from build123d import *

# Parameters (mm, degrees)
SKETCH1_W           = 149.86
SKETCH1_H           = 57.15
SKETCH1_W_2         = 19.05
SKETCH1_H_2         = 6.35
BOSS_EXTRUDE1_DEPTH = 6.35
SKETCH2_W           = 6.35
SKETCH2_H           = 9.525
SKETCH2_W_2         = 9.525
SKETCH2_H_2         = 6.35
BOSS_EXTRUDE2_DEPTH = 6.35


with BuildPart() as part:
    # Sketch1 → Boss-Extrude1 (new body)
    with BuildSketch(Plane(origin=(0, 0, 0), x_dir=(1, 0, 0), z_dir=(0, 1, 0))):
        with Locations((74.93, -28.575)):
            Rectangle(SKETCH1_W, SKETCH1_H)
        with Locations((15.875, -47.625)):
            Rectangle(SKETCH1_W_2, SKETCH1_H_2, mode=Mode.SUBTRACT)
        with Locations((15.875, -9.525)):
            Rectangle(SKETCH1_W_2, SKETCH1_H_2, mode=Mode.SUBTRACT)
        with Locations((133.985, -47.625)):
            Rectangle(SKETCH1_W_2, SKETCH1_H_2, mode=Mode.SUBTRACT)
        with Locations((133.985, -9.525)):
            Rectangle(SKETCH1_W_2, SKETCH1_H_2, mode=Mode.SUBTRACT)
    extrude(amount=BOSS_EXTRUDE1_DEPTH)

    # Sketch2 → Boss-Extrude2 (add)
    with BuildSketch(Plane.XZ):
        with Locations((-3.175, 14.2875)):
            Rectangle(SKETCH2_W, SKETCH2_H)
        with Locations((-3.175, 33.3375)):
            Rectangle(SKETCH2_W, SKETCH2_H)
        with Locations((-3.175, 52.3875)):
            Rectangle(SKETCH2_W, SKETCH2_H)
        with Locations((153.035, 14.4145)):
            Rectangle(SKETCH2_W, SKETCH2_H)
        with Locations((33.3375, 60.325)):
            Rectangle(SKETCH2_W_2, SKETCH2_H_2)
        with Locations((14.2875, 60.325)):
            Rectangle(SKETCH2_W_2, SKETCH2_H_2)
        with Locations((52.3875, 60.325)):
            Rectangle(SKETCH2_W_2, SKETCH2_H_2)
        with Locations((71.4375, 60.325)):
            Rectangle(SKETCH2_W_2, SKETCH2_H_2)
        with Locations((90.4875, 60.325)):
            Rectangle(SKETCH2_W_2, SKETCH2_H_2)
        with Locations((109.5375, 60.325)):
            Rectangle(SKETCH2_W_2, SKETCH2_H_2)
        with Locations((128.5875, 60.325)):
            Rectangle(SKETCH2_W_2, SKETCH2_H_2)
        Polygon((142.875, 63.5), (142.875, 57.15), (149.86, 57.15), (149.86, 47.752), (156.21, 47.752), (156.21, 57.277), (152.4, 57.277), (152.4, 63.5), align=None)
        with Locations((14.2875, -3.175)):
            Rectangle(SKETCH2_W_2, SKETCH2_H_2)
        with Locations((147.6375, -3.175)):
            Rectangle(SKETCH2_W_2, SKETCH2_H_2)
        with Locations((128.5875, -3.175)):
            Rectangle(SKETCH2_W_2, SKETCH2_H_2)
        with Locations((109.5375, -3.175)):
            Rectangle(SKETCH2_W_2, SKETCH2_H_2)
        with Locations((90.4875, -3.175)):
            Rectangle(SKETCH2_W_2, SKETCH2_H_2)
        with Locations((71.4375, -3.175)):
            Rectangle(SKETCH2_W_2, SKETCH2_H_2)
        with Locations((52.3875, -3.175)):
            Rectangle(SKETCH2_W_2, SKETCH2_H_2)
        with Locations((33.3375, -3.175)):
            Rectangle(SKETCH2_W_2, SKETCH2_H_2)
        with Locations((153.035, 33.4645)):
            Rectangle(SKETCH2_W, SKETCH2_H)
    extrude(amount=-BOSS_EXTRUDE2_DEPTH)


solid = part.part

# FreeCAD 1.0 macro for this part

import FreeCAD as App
import Part
import Sketcher
from FreeCAD import Vector
Q = App.Units.Quantity


def add_polygon(sketch, points):
    """Adds a closed chain of lines whose ends are joined by coincident constraints."""
    first, n = sketch.GeometryCount, len(points)
    for a, b in zip(points, points[1:] + points[:1]):
        sketch.addGeometry(Part.LineSegment(App.Vector(*a, 0), App.Vector(*b, 0)), False)
    for i in range(n):
        sketch.addConstraint(Sketcher.Constraint("Coincident", first + i, 2, first + (i + 1) % n, 1))

doc = App.newDocument("Part")
body = doc.addObject("PartDesign::Body", "Body")

# Sketch on XZ plane
sketch1 = doc.addObject("Sketcher::SketchObject", "Sketch")
body.addObject(sketch1)
sketch1.AttachmentSupport = (doc.XZ_Plane, [""])
sketch1.MapMode = "FlatFace"
add_polygon(sketch1, [(0, 0), (0, 57), (150, 57), (150, 0)])  # lines 0-3
add_polygon(sketch1, [(25, 51), (6, 51), (6, 44), (25, 44)])  # lines 4-7
add_polygon(sketch1, [(144, 51), (124, 51), (124, 44), (144, 44)])  # lines 8-11
add_polygon(sketch1, [(25, 13), (6, 13), (6, 6), (25, 6)])  # lines 12-15
add_polygon(sketch1, [(144, 13), (124, 13), (124, 6), (144, 6)])  # lines 16-19
sketch1.addConstraint([
    Sketcher.Constraint("Vertical", 0),
    Sketcher.Constraint("Horizontal", 1),
    Sketcher.Constraint("Vertical", 2),
    Sketcher.Constraint("Horizontal", 3),
    Sketcher.Constraint("Horizontal", 4),
    Sketcher.Constraint("Vertical", 5),
    Sketcher.Constraint("Horizontal", 6),
    Sketcher.Constraint("Vertical", 7),
    Sketcher.Constraint("Horizontal", 8),
    Sketcher.Constraint("Vertical", 9),
    Sketcher.Constraint("Horizontal", 10),
    Sketcher.Constraint("Vertical", 11),
    Sketcher.Constraint("Horizontal", 12),
    Sketcher.Constraint("Vertical", 13),
    Sketcher.Constraint("Horizontal", 14),
    Sketcher.Constraint("Vertical", 15),
    Sketcher.Constraint("Horizontal", 16),
    Sketcher.Constraint("Vertical", 17),
    Sketcher.Constraint("Horizontal", 18),
    Sketcher.Constraint("Vertical", 19),
    Sketcher.Constraint("Coincident", 3, 2, -1, 1),
    Sketcher.Constraint("Horizontal", 7, 2, 8, 2),
    Sketcher.Constraint("Horizontal", 6, 2, 9, 2),
    Sketcher.Constraint("Horizontal", 15, 2, 16, 2),
    Sketcher.Constraint("Horizontal", 14, 2, 17, 2),
    Sketcher.Constraint("Vertical", 5, 2, 12, 2),
    Sketcher.Constraint("Vertical", 7, 2, 14, 2),
    Sketcher.Constraint("Vertical", 9, 2, 16, 2),
    Sketcher.Constraint("Vertical", 11, 2, 18, 2),
    Sketcher.Constraint("Equal", 6, 8),
    Sketcher.Constraint("Equal", 11, 13),
    Sketcher.Constraint("DistanceX", 1, 1, 1, 2, Q("5.9 in")),
    Sketcher.Constraint("DistanceY", -1, 1, 4, 2, Q("2 in")),
    Sketcher.Constraint("DistanceX", -1, 1, 6, 2, Q("1 in")),
    Sketcher.Constraint("DistanceX", 8, 2, 1, 2, Q("1 in")),
    Sketcher.Constraint("DistanceX", 4, 2, 4, 1, Q("0.75 in")),
    Sketcher.Constraint("DistanceY", 0, 1, 0, 2, Q("2.25 in")),
    Sketcher.Constraint("DistanceY", 5, 2, 5, 1, Q("0.25 in")),
    Sketcher.Constraint("DistanceY", -1, 1, 12, 2, Q("0.5 in")),
])
pad1 = doc.addObject("PartDesign::Pad", "Pad")
body.addObject(pad1)
pad1.Profile = sketch1
pad1.Length = Q("0.25 in")
pad1.Reversed = True

# Sketch on XZ plane
sketch2 = doc.addObject("Sketcher::SketchObject", "Sketch001")
body.addObject(sketch2)
sketch2.AttachmentSupport = (doc.XZ_Plane, [""])
sketch2.MapMode = "FlatFace"
add_polygon(sketch2, [(-6.3, 19.1), (-6.3, 9.5), (0, 9.5), (0, 19.1)])  # lines 0-3
add_polygon(sketch2, [(-6.3, 38.1), (-6.3, 28.6), (0, 28.6), (0, 38.1)])  # lines 4-7
add_polygon(sketch2, [(-6.3, 57.1), (-6.3, 47.6), (0, 47.6), (0, 57.1)])  # lines 8-11
add_polygon(sketch2, [(149.9, 19.2), (149.9, 9.7), (156.2, 9.7), (156.2, 19.2)])  # lines 12-15
add_polygon(sketch2, [(28.6, 63.5), (28.6, 57.1), (38.1, 57.1), (38.1, 63.5)])  # lines 16-19
add_polygon(sketch2, [(9.5, 63.5), (9.5, 57.1), (19.1, 57.1), (19.1, 63.5)])  # lines 20-23
add_polygon(sketch2, [(47.6, 63.5), (47.6, 57.1), (57.1, 57.1), (57.1, 63.5)])  # lines 24-27
add_polygon(sketch2, [(66.7, 63.5), (66.7, 57.1), (76.2, 57.1), (76.2, 63.5)])  # lines 28-31
add_polygon(sketch2, [(85.7, 63.5), (85.7, 57.1), (95.2, 57.1), (95.2, 63.5)])  # lines 32-35
add_polygon(sketch2, [(104.8, 63.5), (104.8, 57.1), (114.3, 57.1), (114.3, 63.5)])  # lines 36-39
add_polygon(sketch2, [(123.8, 63.5), (123.8, 57.1), (133.3, 57.1), (133.3, 63.5)])  # lines 40-43
add_polygon(sketch2, [(142.9, 63.5), (142.9, 57.1), (149.9, 57.1), (149.9, 47.8), (156.2, 47.8), (156.2, 57.3), (152.4, 57.3), (152.4, 63.5)])  # lines 44-51
add_polygon(sketch2, [(9.5, 0), (9.5, -6.3), (19.1, -6.3), (19.1, 0)])  # lines 52-55
add_polygon(sketch2, [(142.9, 0), (142.9, -6.3), (152.4, -6.3), (152.4, 0)])  # lines 56-59
add_polygon(sketch2, [(123.8, 0), (123.8, -6.3), (133.3, -6.3), (133.3, 0)])  # lines 60-63
add_polygon(sketch2, [(104.8, 0), (104.8, -6.3), (114.3, -6.3), (114.3, 0)])  # lines 64-67
add_polygon(sketch2, [(85.7, 0), (85.7, -6.3), (95.2, -6.3), (95.2, 0)])  # lines 68-71
add_polygon(sketch2, [(66.7, 0), (66.7, -6.3), (76.2, -6.3), (76.2, 0)])  # lines 72-75
add_polygon(sketch2, [(47.6, 0), (47.6, -6.3), (57.1, -6.3), (57.1, 0)])  # lines 76-79
add_polygon(sketch2, [(28.6, 0), (28.6, -6.3), (38.1, -6.3), (38.1, 0)])  # lines 80-83
add_polygon(sketch2, [(149.9, 38.2), (149.9, 28.7), (156.2, 28.7), (156.2, 38.2)])  # lines 84-87
sketch2.addConstraint([
    Sketcher.Constraint("Vertical", 0),
    Sketcher.Constraint("Horizontal", 1),
    Sketcher.Constraint("Vertical", 2),
    Sketcher.Constraint("Horizontal", 3),
    Sketcher.Constraint("Vertical", 4),
    Sketcher.Constraint("Horizontal", 5),
    Sketcher.Constraint("Vertical", 6),
    Sketcher.Constraint("Horizontal", 7),
    Sketcher.Constraint("Vertical", 8),
    Sketcher.Constraint("Horizontal", 9),
    Sketcher.Constraint("Vertical", 10),
    Sketcher.Constraint("Horizontal", 11),
    Sketcher.Constraint("Vertical", 12),
    Sketcher.Constraint("Horizontal", 13),
    Sketcher.Constraint("Vertical", 14),
    Sketcher.Constraint("Horizontal", 15),
    Sketcher.Constraint("Vertical", 16),
    Sketcher.Constraint("Horizontal", 17),
    Sketcher.Constraint("Vertical", 18),
    Sketcher.Constraint("Horizontal", 19),
    Sketcher.Constraint("Vertical", 20),
    Sketcher.Constraint("Horizontal", 21),
    Sketcher.Constraint("Vertical", 22),
    Sketcher.Constraint("Horizontal", 23),
    Sketcher.Constraint("Vertical", 24),
    Sketcher.Constraint("Horizontal", 25),
    Sketcher.Constraint("Vertical", 26),
    Sketcher.Constraint("Horizontal", 27),
    Sketcher.Constraint("Vertical", 28),
    Sketcher.Constraint("Horizontal", 29),
    Sketcher.Constraint("Vertical", 30),
    Sketcher.Constraint("Horizontal", 31),
    Sketcher.Constraint("Vertical", 32),
    Sketcher.Constraint("Horizontal", 33),
    Sketcher.Constraint("Vertical", 34),
    Sketcher.Constraint("Horizontal", 35),
    Sketcher.Constraint("Vertical", 36),
    Sketcher.Constraint("Horizontal", 37),
    Sketcher.Constraint("Vertical", 38),
    Sketcher.Constraint("Horizontal", 39),
    Sketcher.Constraint("Vertical", 40),
    Sketcher.Constraint("Horizontal", 41),
    Sketcher.Constraint("Vertical", 42),
    Sketcher.Constraint("Horizontal", 43),
    Sketcher.Constraint("Vertical", 44),
    Sketcher.Constraint("Horizontal", 45),
    Sketcher.Constraint("Vertical", 46),
    Sketcher.Constraint("Horizontal", 47),
    Sketcher.Constraint("Vertical", 48),
    Sketcher.Constraint("Horizontal", 49),
    Sketcher.Constraint("Vertical", 50),
    Sketcher.Constraint("Horizontal", 51),
    Sketcher.Constraint("Vertical", 52),
    Sketcher.Constraint("Horizontal", 53),
    Sketcher.Constraint("Vertical", 54),
    Sketcher.Constraint("Horizontal", 55),
    Sketcher.Constraint("Vertical", 56),
    Sketcher.Constraint("Horizontal", 57),
    Sketcher.Constraint("Vertical", 58),
    Sketcher.Constraint("Horizontal", 59),
    Sketcher.Constraint("Vertical", 60),
    Sketcher.Constraint("Horizontal", 61),
    Sketcher.Constraint("Vertical", 62),
    Sketcher.Constraint("Horizontal", 63),
    Sketcher.Constraint("Vertical", 64),
    Sketcher.Constraint("Horizontal", 65),
    Sketcher.Constraint("Vertical", 66),
    Sketcher.Constraint("Horizontal", 67),
    Sketcher.Constraint("Vertical", 68),
    Sketcher.Constraint("Horizontal", 69),
    Sketcher.Constraint("Vertical", 70),
    Sketcher.Constraint("Horizontal", 71),
    Sketcher.Constraint("Vertical", 72),
    Sketcher.Constraint("Horizontal", 73),
    Sketcher.Constraint("Vertical", 74),
    Sketcher.Constraint("Horizontal", 75),
    Sketcher.Constraint("Vertical", 76),
    Sketcher.Constraint("Horizontal", 77),
    Sketcher.Constraint("Vertical", 78),
    Sketcher.Constraint("Horizontal", 79),
    Sketcher.Constraint("Vertical", 80),
    Sketcher.Constraint("Horizontal", 81),
    Sketcher.Constraint("Vertical", 82),
    Sketcher.Constraint("Horizontal", 83),
    Sketcher.Constraint("Vertical", 84),
    Sketcher.Constraint("Horizontal", 85),
    Sketcher.Constraint("Vertical", 86),
    Sketcher.Constraint("Horizontal", 87),
    Sketcher.Constraint("PointOnObject", 1, 2, -2),
    Sketcher.Constraint("PointOnObject", 5, 2, -2),
    Sketcher.Constraint("PointOnObject", 9, 2, -2),
    Sketcher.Constraint("PointOnObject", 54, 2, -1),
    Sketcher.Constraint("PointOnObject", 58, 2, -1),
    Sketcher.Constraint("PointOnObject", 62, 2, -1),
    Sketcher.Constraint("PointOnObject", 66, 2, -1),
    Sketcher.Constraint("PointOnObject", 70, 2, -1),
    Sketcher.Constraint("PointOnObject", 74, 2, -1),
    Sketcher.Constraint("PointOnObject", 78, 2, -1),
    Sketcher.Constraint("PointOnObject", 82, 2, -1),
    Sketcher.Constraint("Horizontal", 11, 2, 16, 2),
    Sketcher.Constraint("Horizontal", 17, 2, 20, 2),
    Sketcher.Constraint("Horizontal", 19, 2, 22, 2),
    Sketcher.Constraint("Horizontal", 21, 2, 24, 2),
    Sketcher.Constraint("Horizontal", 23, 2, 26, 2),
    Sketcher.Constraint("Horizontal", 25, 2, 28, 2),
    Sketcher.Constraint("Horizontal", 27, 2, 30, 2),
    Sketcher.Constraint("Horizontal", 29, 2, 32, 2),
    Sketcher.Constraint("Horizontal", 31, 2, 34, 2),
    Sketcher.Constraint("Horizontal", 33, 2, 36, 2),
    Sketcher.Constraint("Horizontal", 35, 2, 38, 2),
    Sketcher.Constraint("Horizontal", 37, 2, 40, 2),
    Sketcher.Constraint("Horizontal", 39, 2, 42, 2),
    Sketcher.Constraint("Horizontal", 41, 2, 44, 2),
    Sketcher.Constraint("Horizontal", 43, 2, 50, 2),
    Sketcher.Constraint("Horizontal", 53, 2, 56, 2),
    Sketcher.Constraint("Horizontal", 57, 2, 60, 2),
    Sketcher.Constraint("Horizontal", 61, 2, 64, 2),
    Sketcher.Constraint("Horizontal", 65, 2, 68, 2),
    Sketcher.Constraint("Horizontal", 69, 2, 72, 2),
    Sketcher.Constraint("Horizontal", 73, 2, 76, 2),
    Sketcher.Constraint("Horizontal", 77, 2, 80, 2),
    Sketcher.Constraint("Vertical", 3, 2, 4, 2),
    Sketcher.Constraint("Vertical", 7, 2, 8, 2),
    Sketcher.Constraint("Vertical", 15, 2, 45, 2),
    Sketcher.Constraint("Vertical", 14, 2, 47, 2),
    Sketcher.Constraint("Vertical", 23, 2, 52, 2),
    Sketcher.Constraint("Vertical", 22, 2, 53, 2),
    Sketcher.Constraint("Vertical", 51, 2, 56, 2),
    Sketcher.Constraint("Vertical", 50, 2, 57, 2),
    Sketcher.Constraint("Vertical", 43, 2, 60, 2),
    Sketcher.Constraint("Vertical", 42, 2, 61, 2),
    Sketcher.Constraint("Vertical", 39, 2, 64, 2),
    Sketcher.Constraint("Vertical", 38, 2, 65, 2),
    Sketcher.Constraint("Vertical", 35, 2, 68, 2),
    Sketcher.Constraint("Vertical", 34, 2, 69, 2),
    Sketcher.Constraint("Vertical", 31, 2, 72, 2),
    Sketcher.Constraint("Vertical", 30, 2, 73, 2),
    Sketcher.Constraint("Vertical", 27, 2, 76, 2),
    Sketcher.Constraint("Vertical", 26, 2, 77, 2),
    Sketcher.Constraint("Vertical", 19, 2, 80, 2),
    Sketcher.Constraint("Vertical", 18, 2, 81, 2),
    Sketcher.Constraint("Vertical", 46, 2, 84, 2),
    Sketcher.Constraint("Vertical", 48, 2, 85, 2),
    Sketcher.Constraint("Equal", 11, 13),
    Sketcher.Constraint("Equal", 19, 21),
    Sketcher.Constraint("Equal", 23, 25),
    Sketcher.Constraint("Equal", 27, 29),
    Sketcher.Constraint("Equal", 31, 33),
    Sketcher.Constraint("Equal", 35, 37),
    Sketcher.Constraint("Equal", 39, 41),
    Sketcher.Constraint("Equal", 43, 51),
    Sketcher.Constraint("Equal", 83, 0),
    Sketcher.Constraint("Equal", 2, 4),
    Sketcher.Constraint("Equal", 6, 8),
    Sketcher.Constraint("Equal", 10, 12),
    Sketcher.Constraint("Equal", 87, 16),
    Sketcher.Constraint("Equal", 14, 48),
    Sketcher.Constraint("Equal", 44, 52),
    Sketcher.Constraint("Equal", 48, 84),
    Sketcher.Constraint("DistanceX", -1, 1, 29, 2, Q("3 in")),
    Sketcher.Constraint("DistanceX", -1, 1, 49, 2, Q("6 in")),
    Sketcher.Constraint("DistanceX", 1, 1, 1, 2, Q("0.25 in")),
    Sketcher.Constraint("DistanceX", 49, 2, 49, 1, Q("0.15 in")),
    Sketcher.Constraint("DistanceY", 46, 2, 46, 1, Q("0.37 in")),
    Sketcher.Constraint("DistanceY", -1, 1, 6, 2, Q("1.5 in")),
    Sketcher.Constraint("DistanceX", -1, 1, 17, 2, Q("1.5 in")),
    Sketcher.Constraint("DistanceY", -1, 1, 18, 2, Q("2.5 in")),
    Sketcher.Constraint("DistanceX", -1, 1, 37, 2, Q("4.5 in")),
    Sketcher.Constraint("DistanceX", 17, 1, 17, 2, Q("0.375 in")),
    Sketcher.Constraint("DistanceY", -1, 1, 2, 2, Q("0.75 in")),
    Sketcher.Constraint("DistanceY", -1, 1, 12, 2, Q("0.38 in")),
    Sketcher.Constraint("DistanceX", -1, 1, 21, 2, Q("0.75 in")),
    Sketcher.Constraint("DistanceX", -1, 1, 25, 2, Q("2.25 in")),
    Sketcher.Constraint("DistanceX", -1, 1, 33, 2, Q("3.75 in")),
    Sketcher.Constraint("DistanceX", -1, 1, 41, 2, Q("5.25 in")),
    Sketcher.Constraint("DistanceY", -1, 1, 84, 2, Q("1.13 in")),
])
pad2 = doc.addObject("PartDesign::Pad", "Pad001")
body.addObject(pad2)
pad2.Profile = sketch2
pad2.Length = Q("0.25 in")
pad2.Reversed = True

doc.recompute()
